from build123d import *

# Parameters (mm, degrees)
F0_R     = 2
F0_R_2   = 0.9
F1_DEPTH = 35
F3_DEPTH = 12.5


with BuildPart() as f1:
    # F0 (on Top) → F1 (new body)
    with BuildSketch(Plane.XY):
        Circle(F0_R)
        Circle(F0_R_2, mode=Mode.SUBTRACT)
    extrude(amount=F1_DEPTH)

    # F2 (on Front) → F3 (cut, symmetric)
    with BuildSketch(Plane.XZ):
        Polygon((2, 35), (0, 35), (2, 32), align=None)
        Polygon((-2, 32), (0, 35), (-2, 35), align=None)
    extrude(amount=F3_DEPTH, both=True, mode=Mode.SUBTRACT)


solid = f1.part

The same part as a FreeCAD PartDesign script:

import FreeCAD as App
import Part
import Sketcher
from FreeCAD import Vector


def add_polygon(sketch, points):
    """Adds a closed chain of lines whose ends are joined by coincident constraints."""
    first, n = sketch.GeometryCount, len(points)
    for a, b in zip(points, points[1:] + points[:1]):
        sketch.addGeometry(Part.LineSegment(App.Vector(*a, 0), App.Vector(*b, 0)), False)
    for i in range(n):
        sketch.addConstraint(Sketcher.Constraint("Coincident", first + i, 2, first + (i + 1) % n, 1))

doc = App.newDocument("Part")
params = doc.addObject("Spreadsheet::Sheet", "Params")
for row, (alias, value) in enumerate([
    ("sketch1_diameter", "4 mm"),
    ("sketch1_diameter2", "1.8 mm"),
    ("pad1_length", "35 mm"),
    ("sketch2_width", "2 mm"),
    ("sketch2_height", "3 mm"),
    ("pocket1_length", "25 mm"),
], start=1):
    params.set(f"A{row}", alias)
    params.set(f"B{row}", "=" + value)
    params.setAlias(f"B{row}", alias)

body = doc.addObject("PartDesign::Body", "Body")

# Sketch on XY plane
sketch1 = doc.addObject("Sketcher::SketchObject", "Sketch")
body.addObject(sketch1)
sketch1.AttachmentSupport = (doc.XY_Plane, [""])
sketch1.MapMode = "FlatFace"
sketch1.addGeometry([
    Part.Circle(Vector(0, 0, 0), Vector(0, 0, 1), 2),
    Part.Circle(Vector(0, 0, 0), Vector(0, 0, 1), 0.9),
], False)
sketch1.addConstraint([
    Sketcher.Constraint("Coincident", 0, 3, -1, 1),
    Sketcher.Constraint("Coincident", 1, 3, -1, 1),
    Sketcher.Constraint("Diameter", 0, 4.0),
    Sketcher.Constraint("Diameter", 1, 1.8),
])
sketch1.setExpression("Constraints[2]", "Params.sketch1_diameter")
sketch1.setExpression("Constraints[3]", "Params.sketch1_diameter2")
pad1 = doc.addObject("PartDesign::Pad", "Pad")
body.addObject(pad1)
pad1.Profile = sketch1
pad1.setExpression("Length", "Params.pad1_length")

# Sketch on XZ plane
sketch2 = doc.addObject("Sketcher::SketchObject", "Sketch001")
body.addObject(sketch2)
sketch2.AttachmentSupport = (doc.XZ_Plane, [""])
sketch2.MapMode = "FlatFace"
add_polygon(sketch2, [(2, 35), (0, 35), (2, 32)])  # lines 0-2
add_polygon(sketch2, [(-2, 32), (0, 35), (-2, 35)])  # lines 3-5
sketch2.addConstraint([
    Sketcher.Constraint("Horizontal", 0),
    Sketcher.Constraint("Vertical", 2),
    Sketcher.Constraint("Horizontal", 4),
    Sketcher.Constraint("Vertical", 5),
    Sketcher.Constraint("Coincident", 3, 2, 0, 2),
    Sketcher.Constraint("Symmetric", 1, 2, 5, 2, -2),
    Sketcher.Constraint("PointOnObject", 0, 2, -2),
    Sketcher.Constraint("DistanceX", 0, 2, 0, 1, 2.0),
    Sketcher.Constraint("DistanceY", 2, 1, 2, 2, 3.0),
    Sketcher.Constraint("DistanceY", -1, 1, 0, 2, 35.0),
])
sketch2.setExpression("Constraints[13]", "Params.sketch2_width")
sketch2.setExpression("Constraints[14]", "Params.sketch2_height")
pocket1 = doc.addObject("PartDesign::Pocket", "Pocket")
body.addObject(pocket1)
pocket1.Profile = sketch2
pocket1.setExpression("Length", "Params.pocket1_length")
pocket1.Midplane = True

doc.recompute()
